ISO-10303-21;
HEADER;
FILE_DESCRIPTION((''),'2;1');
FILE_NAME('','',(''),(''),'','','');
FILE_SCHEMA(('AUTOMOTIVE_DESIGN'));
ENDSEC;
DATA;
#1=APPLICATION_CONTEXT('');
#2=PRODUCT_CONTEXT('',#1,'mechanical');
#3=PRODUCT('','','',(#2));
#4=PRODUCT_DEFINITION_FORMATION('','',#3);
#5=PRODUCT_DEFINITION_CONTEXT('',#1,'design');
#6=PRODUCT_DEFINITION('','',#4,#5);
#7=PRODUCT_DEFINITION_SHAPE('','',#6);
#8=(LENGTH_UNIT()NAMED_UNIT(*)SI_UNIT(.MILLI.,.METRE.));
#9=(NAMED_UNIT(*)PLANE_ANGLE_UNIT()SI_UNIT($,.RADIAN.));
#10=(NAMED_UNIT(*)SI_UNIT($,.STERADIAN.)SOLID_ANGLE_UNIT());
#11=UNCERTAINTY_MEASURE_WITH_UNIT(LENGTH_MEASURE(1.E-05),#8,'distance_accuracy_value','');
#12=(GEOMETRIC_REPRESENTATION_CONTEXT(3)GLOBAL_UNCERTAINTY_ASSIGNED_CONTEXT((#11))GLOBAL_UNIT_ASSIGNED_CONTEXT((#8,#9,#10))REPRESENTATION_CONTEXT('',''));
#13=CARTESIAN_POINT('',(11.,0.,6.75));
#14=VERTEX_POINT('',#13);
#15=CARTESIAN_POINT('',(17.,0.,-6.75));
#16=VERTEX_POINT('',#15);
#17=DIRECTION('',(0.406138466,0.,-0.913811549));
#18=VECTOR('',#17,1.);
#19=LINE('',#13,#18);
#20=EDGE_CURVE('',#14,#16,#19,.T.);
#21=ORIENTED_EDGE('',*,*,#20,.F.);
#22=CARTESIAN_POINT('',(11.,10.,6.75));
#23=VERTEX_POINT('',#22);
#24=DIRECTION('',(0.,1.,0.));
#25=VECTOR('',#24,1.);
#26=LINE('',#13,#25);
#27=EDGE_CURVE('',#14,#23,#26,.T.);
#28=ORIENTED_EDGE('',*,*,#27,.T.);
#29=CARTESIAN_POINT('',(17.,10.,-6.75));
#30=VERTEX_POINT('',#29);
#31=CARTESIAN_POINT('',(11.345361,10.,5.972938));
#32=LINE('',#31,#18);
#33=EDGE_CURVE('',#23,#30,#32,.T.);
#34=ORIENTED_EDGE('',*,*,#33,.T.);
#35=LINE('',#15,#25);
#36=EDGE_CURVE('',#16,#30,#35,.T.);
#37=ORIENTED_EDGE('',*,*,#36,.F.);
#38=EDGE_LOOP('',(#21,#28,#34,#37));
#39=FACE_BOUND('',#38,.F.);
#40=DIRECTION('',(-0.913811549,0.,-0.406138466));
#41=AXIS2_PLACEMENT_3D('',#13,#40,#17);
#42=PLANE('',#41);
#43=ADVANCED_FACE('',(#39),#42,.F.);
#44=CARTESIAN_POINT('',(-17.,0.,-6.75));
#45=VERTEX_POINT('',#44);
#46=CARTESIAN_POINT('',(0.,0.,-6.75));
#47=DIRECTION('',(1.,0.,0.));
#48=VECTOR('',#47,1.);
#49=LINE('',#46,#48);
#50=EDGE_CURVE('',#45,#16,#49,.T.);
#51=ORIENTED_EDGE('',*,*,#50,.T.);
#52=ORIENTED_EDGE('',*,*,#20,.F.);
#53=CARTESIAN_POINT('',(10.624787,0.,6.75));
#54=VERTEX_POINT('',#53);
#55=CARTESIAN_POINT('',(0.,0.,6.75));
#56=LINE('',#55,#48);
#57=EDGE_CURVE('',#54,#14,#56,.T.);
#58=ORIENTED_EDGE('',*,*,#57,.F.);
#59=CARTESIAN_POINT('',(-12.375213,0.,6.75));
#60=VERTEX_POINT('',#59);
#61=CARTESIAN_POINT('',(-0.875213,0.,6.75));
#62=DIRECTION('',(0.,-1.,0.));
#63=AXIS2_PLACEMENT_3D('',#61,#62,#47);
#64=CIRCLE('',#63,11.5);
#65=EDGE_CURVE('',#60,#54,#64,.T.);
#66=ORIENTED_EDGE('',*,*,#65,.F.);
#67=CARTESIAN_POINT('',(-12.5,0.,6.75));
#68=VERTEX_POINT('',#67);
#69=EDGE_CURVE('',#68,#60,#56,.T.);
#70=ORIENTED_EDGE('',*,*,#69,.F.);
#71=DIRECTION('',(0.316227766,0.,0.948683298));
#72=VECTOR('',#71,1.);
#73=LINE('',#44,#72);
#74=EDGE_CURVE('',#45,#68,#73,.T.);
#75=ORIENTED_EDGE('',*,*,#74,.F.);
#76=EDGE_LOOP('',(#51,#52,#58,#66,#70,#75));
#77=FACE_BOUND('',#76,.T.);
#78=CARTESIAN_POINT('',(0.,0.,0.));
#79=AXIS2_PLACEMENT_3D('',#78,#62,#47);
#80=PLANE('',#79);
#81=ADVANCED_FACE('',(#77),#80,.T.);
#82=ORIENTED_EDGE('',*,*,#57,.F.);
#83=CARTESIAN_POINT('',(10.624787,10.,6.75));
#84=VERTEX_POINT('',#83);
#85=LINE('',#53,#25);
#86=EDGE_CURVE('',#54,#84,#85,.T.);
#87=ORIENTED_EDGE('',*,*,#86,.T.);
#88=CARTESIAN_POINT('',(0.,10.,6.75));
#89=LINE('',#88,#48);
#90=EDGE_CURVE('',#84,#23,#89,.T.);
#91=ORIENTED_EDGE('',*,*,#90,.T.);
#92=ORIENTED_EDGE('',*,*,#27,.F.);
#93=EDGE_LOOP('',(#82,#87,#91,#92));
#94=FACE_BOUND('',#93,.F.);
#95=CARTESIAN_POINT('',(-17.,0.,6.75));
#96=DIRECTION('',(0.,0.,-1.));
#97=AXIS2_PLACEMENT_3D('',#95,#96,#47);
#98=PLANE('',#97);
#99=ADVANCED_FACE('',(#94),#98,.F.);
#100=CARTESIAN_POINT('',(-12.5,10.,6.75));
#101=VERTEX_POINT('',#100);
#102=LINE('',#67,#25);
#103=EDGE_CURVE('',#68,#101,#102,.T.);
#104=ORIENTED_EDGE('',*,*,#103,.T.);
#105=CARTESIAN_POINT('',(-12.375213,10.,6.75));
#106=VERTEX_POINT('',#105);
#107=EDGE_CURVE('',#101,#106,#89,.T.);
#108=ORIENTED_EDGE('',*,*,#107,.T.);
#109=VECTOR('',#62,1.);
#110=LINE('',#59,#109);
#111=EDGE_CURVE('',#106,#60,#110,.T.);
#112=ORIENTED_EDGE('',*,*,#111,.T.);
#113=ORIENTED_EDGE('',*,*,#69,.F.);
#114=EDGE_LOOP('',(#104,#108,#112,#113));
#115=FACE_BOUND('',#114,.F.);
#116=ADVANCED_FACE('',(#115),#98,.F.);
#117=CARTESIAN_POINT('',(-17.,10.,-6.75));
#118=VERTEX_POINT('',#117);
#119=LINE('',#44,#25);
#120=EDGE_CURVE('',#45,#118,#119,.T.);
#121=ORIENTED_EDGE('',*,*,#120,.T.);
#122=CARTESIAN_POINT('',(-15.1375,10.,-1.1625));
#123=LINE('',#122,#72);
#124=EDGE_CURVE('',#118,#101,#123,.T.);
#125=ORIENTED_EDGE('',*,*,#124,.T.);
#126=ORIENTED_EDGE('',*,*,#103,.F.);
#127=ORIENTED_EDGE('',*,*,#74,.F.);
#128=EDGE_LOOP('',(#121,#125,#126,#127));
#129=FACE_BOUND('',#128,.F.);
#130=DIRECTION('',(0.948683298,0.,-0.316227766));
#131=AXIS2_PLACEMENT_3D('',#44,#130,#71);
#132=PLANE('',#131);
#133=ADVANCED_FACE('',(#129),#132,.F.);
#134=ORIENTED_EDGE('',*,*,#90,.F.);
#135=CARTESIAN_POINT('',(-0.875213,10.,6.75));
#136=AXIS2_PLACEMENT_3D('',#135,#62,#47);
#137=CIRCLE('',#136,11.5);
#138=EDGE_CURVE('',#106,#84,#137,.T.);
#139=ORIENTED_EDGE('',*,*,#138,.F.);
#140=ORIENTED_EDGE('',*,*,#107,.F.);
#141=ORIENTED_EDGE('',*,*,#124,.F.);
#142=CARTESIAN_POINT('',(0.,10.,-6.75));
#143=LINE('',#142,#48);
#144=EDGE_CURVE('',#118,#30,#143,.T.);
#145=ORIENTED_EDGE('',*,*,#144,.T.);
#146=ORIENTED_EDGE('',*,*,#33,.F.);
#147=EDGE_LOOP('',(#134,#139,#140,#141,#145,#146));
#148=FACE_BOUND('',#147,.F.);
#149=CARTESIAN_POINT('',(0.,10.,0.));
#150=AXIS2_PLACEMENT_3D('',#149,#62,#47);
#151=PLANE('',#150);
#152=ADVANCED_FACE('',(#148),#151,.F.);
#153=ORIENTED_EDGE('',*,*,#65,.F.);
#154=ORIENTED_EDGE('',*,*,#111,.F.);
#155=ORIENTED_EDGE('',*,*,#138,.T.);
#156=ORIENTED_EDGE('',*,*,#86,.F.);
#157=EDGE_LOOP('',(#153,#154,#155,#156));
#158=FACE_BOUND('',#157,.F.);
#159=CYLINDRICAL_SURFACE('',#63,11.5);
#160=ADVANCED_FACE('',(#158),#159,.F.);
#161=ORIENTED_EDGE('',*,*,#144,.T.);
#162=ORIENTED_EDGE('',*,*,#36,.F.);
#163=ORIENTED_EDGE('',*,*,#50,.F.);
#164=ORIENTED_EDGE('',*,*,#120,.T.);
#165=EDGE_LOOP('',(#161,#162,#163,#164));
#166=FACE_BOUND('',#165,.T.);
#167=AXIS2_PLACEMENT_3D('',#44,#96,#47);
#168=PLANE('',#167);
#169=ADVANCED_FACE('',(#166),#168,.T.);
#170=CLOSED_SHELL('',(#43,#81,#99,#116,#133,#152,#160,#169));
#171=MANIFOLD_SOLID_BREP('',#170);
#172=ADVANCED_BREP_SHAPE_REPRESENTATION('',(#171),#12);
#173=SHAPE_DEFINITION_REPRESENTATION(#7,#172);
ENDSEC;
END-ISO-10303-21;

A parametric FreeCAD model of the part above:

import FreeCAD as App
import Part
import Sketcher


def add_polygon(sketch, points):
    """Adds a closed chain of lines whose ends are joined by coincident constraints."""
    first, n = sketch.GeometryCount, len(points)
    for a, b in zip(points, points[1:] + points[:1]):
        sketch.addGeometry(Part.LineSegment(App.Vector(*a, 0), App.Vector(*b, 0)), False)
    for i in range(n):
        sketch.addConstraint(Sketcher.Constraint("Coincident", first + i, 2, first + (i + 1) % n, 1))

doc = App.newDocument("Part")
body = doc.addObject("PartDesign::Body", "Body")

sketch1 = body.newObject("Sketcher::SketchObject", "Sketch")
sketch1.AttachmentSupport = (doc.getObject("XZ_Plane"), [""])
sketch1.MapMode = "FlatFace"
add_polygon(sketch1, [(-17, 7), (-17, -7), (17, -7), (17, 7)])
sketch1.addConstraint([
    Sketcher.Constraint("Vertical", 0),
    Sketcher.Constraint("Horizontal", 1),
    Sketcher.Constraint("Vertical", 2),
    Sketcher.Constraint("Horizontal", 3),
    Sketcher.Constraint("Symmetric", 0, 2, 2, 2, -1, 1),
    Sketcher.Constraint("DistanceX", 1, 1, 1, 2, 34.0),
    Sketcher.Constraint("DistanceY", 0, 2, 0, 1, 13.5),
])
pad1 = body.newObject("PartDesign::Pad", "Pad")
pad1.Profile = sketch1
pad1.Length = 10
pad1.Reversed = True

sketch2 = body.newObject("Sketcher::SketchObject", "Sketch001")
sketch2.AttachmentSupport = (doc.getObject("XZ_Plane"), [""])
sketch2.MapMode = "FlatFace"
sketch2.addGeometry(Part.Circle(App.Vector(-0.9, 6.8, 0), App.Vector(0, 0, 1), 11.5), False)
add_polygon(sketch2, [(-17, -6.8), (-12.5, 6.8), (-17, 6.8)])
add_polygon(sketch2, [(11, 6.8), (17, -6.8), (17, 6.8)])
sketch2.addConstraint([
    Sketcher.Constraint("Horizontal", 2),
    Sketcher.Constraint("Vertical", 3),
    Sketcher.Constraint("Vertical", 5),
    Sketcher.Constraint("Horizontal", 6),
    Sketcher.Constraint("Symmetric", 2, 2, 4, 2, -1, 1),
    Sketcher.Constraint("Horizontal", 0, 3, 1, 2),
    Sketcher.Constraint("Horizontal", 3, 2, 4, 2),
    Sketcher.Constraint("Horizontal", 2, 2, 5, 2),
    Sketcher.Constraint("Diameter", 0, 23.0),
    Sketcher.Constraint("DistanceX", 6, 2, 6, 1, 6.0),
    Sketcher.Constraint("DistanceX", 2, 2, 2, 1, 4.5),
    Sketcher.Constraint("DistanceY", 3, 2, 3, 1, 13.5),
    Sketcher.Constraint("DistanceX", 2, 2, -1, 1, 17.0),
    Sketcher.Constraint("DistanceX", 0, 3, -1, 1, 0.875213),
])
pocket1 = body.newObject("PartDesign::Pocket", "Pocket")
pocket1.Profile = sketch2
pocket1.Type = "ThroughAll"

doc.recompute()
